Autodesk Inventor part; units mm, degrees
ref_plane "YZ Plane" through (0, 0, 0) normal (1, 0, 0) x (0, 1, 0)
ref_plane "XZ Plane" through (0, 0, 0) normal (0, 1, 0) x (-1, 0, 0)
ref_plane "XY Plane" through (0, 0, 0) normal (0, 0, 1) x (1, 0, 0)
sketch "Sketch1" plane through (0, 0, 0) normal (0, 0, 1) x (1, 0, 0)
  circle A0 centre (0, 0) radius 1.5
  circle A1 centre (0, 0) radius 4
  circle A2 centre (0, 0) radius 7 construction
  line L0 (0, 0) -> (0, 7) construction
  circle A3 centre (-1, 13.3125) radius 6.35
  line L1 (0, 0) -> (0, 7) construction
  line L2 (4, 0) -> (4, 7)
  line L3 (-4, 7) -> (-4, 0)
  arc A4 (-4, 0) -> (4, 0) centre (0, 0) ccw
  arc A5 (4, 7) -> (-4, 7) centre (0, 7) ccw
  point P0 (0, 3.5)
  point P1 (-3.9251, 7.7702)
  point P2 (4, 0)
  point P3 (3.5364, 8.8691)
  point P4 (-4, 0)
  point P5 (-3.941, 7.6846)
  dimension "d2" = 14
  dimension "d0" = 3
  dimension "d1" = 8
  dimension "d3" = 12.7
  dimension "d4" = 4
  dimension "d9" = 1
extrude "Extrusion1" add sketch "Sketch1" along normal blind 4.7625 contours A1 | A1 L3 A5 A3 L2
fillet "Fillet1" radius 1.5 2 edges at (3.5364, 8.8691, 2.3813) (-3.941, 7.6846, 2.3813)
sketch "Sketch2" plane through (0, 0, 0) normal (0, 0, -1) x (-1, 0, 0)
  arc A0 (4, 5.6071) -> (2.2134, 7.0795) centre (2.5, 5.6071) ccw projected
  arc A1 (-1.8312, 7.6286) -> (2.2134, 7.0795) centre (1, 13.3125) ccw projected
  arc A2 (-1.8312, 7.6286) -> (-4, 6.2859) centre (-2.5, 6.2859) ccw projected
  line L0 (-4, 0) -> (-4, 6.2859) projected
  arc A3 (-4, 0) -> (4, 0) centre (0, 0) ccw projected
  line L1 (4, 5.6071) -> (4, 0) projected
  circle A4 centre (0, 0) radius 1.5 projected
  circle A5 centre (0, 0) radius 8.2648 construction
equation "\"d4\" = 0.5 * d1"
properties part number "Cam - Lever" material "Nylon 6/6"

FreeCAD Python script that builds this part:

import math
import FreeCAD as App
import Part
import Sketcher

V = App.Vector


def edges_at(feature, points):
    """Names of the edges that pass closest to the given points."""
    edges = feature.Shape.Edges
    near = lambda p: min(range(len(edges)), key=lambda i: edges[i].distToShape(Part.Vertex(*p))[0])
    return sorted({f"Edge{near(p) + 1}" for p in points})

doc = App.newDocument("Part")
params = doc.addObject("Spreadsheet::Sheet", "Params")
for row, (alias, value) in enumerate([
    ("sketch1_diameter", "3 mm"),
    ("sketch1_radius", "4 mm"),
    ("sketch1_radius2", "6.35 mm"),
    ("sketch1_height", "7 mm"),
    ("pad1_length", "4.7625 mm"),
    ("fillet_radius", "1.5 mm"),
], start=1):
    params.set(f"A{row}", alias)
    params.set(f"B{row}", "=" + value)
    params.setAlias(f"B{row}", alias)

body = doc.addObject("PartDesign::Body", "Body")

# Sketch on XY plane
sketch1 = body.newObject("Sketcher::SketchObject", "Sketch")
sketch1.AttachmentSupport = (doc.getObject("XY_Plane"), [""])
sketch1.MapMode = "FlatFace"
sketch1.addGeometry([
    Part.ArcOfCircle(Part.Circle(V(0, 0, 0), V(0, 0, 1), 4), math.radians(180), math.radians(360)),  # 0
    Part.LineSegment(V(4, 0, 0), V(4, 7, 0)),  # 1
    Part.ArcOfCircle(Part.Circle(V(0, 7, 0), V(0, 0, 1), 4), math.radians(0), math.radians(28)),  # 2
    Part.ArcOfCircle(Part.Circle(V(-1, 13.3, 0), V(0, 0, 1), 6.3), math.radians(-118), math.radians(-44)),  # 3
    Part.ArcOfCircle(Part.Circle(V(0, 7, 0), V(0, 0, 1), 4), math.radians(170.15), math.radians(180)),  # 4
    Part.LineSegment(V(-4, 7, 0), V(-4, 0, 0)),  # 5
    Part.Circle(V(0, 0, 0), V(0, 0, 1), 1.5),  # 6
], False)
sketch1.addConstraint([
    Sketcher.Constraint("Tangent", 0, 2, 1, 1),
    Sketcher.Constraint("Tangent", 1, 2, 2, 1),
    Sketcher.Constraint("Coincident", 2, 2, 3, 2),
    Sketcher.Constraint("Coincident", 3, 1, 4, 1),
    Sketcher.Constraint("Tangent", 4, 2, 5, 1),
    Sketcher.Constraint("Tangent", 5, 2, 0, 1),
    Sketcher.Constraint("Vertical", 1),
    Sketcher.Constraint("Vertical", 5),
    Sketcher.Constraint("Coincident", 0, 3, -1, 1),
    Sketcher.Constraint("Coincident", 6, 3, -1, 1),
    Sketcher.Constraint("Coincident", 4, 3, 2, 3),
    Sketcher.Constraint("Equal", 0, 2),
    Sketcher.Constraint("Diameter", 6, 3.0),
    Sketcher.Constraint("Radius", 0, 4.0),
    Sketcher.Constraint("Radius", 3, 6.35),
    Sketcher.Constraint("DistanceX", 3, 3, -1, 1, 1.0),
    Sketcher.Constraint("DistanceY", 1, 1, 1, 2, 7.0),
    Sketcher.Constraint("DistanceX", 3, 1, -1, 1, 3.941),
])
sketch1.setExpression("Constraints[12]", "Params.sketch1_diameter")
sketch1.setExpression("Constraints[13]", "Params.sketch1_radius")
sketch1.setExpression("Constraints[14]", "Params.sketch1_radius2")
sketch1.setExpression("Constraints[16]", "Params.sketch1_height")
pad1 = body.newObject("PartDesign::Pad", "Pad")
pad1.Profile = sketch1
pad1.setExpression("Length", "Params.pad1_length")
doc.recompute()

fillet = body.newObject("PartDesign::Fillet", "Fillet")
fillet.Base = (pad1, edges_at(pad1, [(3.536, 8.869, 2.381), (-3.941, 7.685, 2.381)]))
fillet.setExpression("Radius", "Params.fillet_radius")

doc.recompute()
